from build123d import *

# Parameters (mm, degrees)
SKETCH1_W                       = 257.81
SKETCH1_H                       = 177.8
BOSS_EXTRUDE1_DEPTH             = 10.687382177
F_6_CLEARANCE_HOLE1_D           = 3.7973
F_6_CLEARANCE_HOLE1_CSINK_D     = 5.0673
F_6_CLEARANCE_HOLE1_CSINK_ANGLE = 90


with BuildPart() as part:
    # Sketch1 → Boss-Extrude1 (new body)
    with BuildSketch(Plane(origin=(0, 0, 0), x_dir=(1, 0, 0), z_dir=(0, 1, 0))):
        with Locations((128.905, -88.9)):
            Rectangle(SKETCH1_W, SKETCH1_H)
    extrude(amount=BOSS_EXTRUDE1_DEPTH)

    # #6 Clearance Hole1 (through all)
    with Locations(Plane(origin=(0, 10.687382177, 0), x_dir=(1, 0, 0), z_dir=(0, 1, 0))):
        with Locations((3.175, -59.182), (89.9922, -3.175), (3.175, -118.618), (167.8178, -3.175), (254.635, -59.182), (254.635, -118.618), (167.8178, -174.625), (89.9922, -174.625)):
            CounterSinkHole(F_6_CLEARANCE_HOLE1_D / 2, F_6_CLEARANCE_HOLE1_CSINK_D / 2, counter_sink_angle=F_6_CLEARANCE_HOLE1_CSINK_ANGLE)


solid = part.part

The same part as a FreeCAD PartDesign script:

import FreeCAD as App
import Part
import Sketcher
from FreeCAD import Vector
Q = App.Units.Quantity


def add_polygon(sketch, points):
    """Adds a closed chain of lines whose ends are joined by coincident constraints."""
    first, n = sketch.GeometryCount, len(points)
    for a, b in zip(points, points[1:] + points[:1]):
        sketch.addGeometry(Part.LineSegment(App.Vector(*a, 0), App.Vector(*b, 0)), False)
    for i in range(n):
        sketch.addConstraint(Sketcher.Constraint("Coincident", first + i, 2, first + (i + 1) % n, 1))

doc = App.newDocument("Part")
body = doc.addObject("PartDesign::Body", "Body")

# Sketch on XZ plane
sketch1 = body.newObject("Sketcher::SketchObject", "Sketch")
sketch1.AttachmentSupport = (doc.getObject("XZ_Plane"), [""])
sketch1.MapMode = "FlatFace"
add_polygon(sketch1, [(0, 0), (0, 178), (258, 178), (258, 0)])  # lines 0-3
sketch1.addConstraint(Sketcher.Constraint("Vertical", 0))
sketch1.addConstraint(Sketcher.Constraint("Horizontal", 1))
sketch1.addConstraint(Sketcher.Constraint("Vertical", 2))
sketch1.addConstraint(Sketcher.Constraint("Horizontal", 3))
sketch1.addConstraint(Sketcher.Constraint("Coincident", 3, 2, -1, 1))
sketch1.addConstraint(Sketcher.Constraint("DistanceY", 0, 1, 0, 2, Q("7 in")))
sketch1.addConstraint(Sketcher.Constraint("DistanceX", 1, 1, 1, 2, Q("10.15 in")))
pad1 = body.newObject("PartDesign::Pad", "Pad")
pad1.Profile = sketch1
pad1.Length = 10.687382
pad1.Reversed = True

# Sketch on XZ plane
sketch2 = body.newObject("Sketcher::SketchObject", "Sketch001")
sketch2.AttachmentSupport = (doc.getObject("XZ_Plane"), [""])
sketch2.MapMode = "FlatFace"
sketch2.AttachmentOffset = App.Placement(Vector(0, 0, -10.687382), App.Rotation())
sketch2.addGeometry(Part.Circle(Vector(3.2, 59.2, 0), Vector(0, 0, 1), 1.9), False)
sketch2.addGeometry(Part.Circle(Vector(90, 3.2, 0), Vector(0, 0, 1), 1.9), False)
sketch2.addGeometry(Part.Circle(Vector(3.2, 118.6, 0), Vector(0, 0, 1), 1.9), False)
sketch2.addGeometry(Part.Circle(Vector(167.8, 3.2, 0), Vector(0, 0, 1), 1.9), False)
sketch2.addGeometry(Part.Circle(Vector(254.6, 59.2, 0), Vector(0, 0, 1), 1.9), False)
sketch2.addGeometry(Part.Circle(Vector(254.6, 118.6, 0), Vector(0, 0, 1), 1.9), False)
sketch2.addGeometry(Part.Circle(Vector(167.8, 174.6, 0), Vector(0, 0, 1), 1.9), False)
sketch2.addGeometry(Part.Circle(Vector(90, 174.6, 0), Vector(0, 0, 1), 1.9), False)
sketch2.addConstraint(Sketcher.Constraint("Equal", 0, 1))
sketch2.addConstraint(Sketcher.Constraint("Equal", 1, 2))
sketch2.addConstraint(Sketcher.Constraint("Equal", 2, 3))
sketch2.addConstraint(Sketcher.Constraint("Equal", 3, 4))
sketch2.addConstraint(Sketcher.Constraint("Equal", 4, 5))
sketch2.addConstraint(Sketcher.Constraint("Equal", 5, 6))
sketch2.addConstraint(Sketcher.Constraint("Equal", 6, 7))
sketch2.addConstraint(Sketcher.Constraint("Horizontal", 1, 3, 3, 3))
sketch2.addConstraint(Sketcher.Constraint("Horizontal", 0, 3, 4, 3))
sketch2.addConstraint(Sketcher.Constraint("Horizontal", 2, 3, 5, 3))
sketch2.addConstraint(Sketcher.Constraint("Horizontal", 6, 3, 7, 3))
sketch2.addConstraint(Sketcher.Constraint("Vertical", 0, 3, 2, 3))
sketch2.addConstraint(Sketcher.Constraint("Vertical", 4, 3, 5, 3))
sketch2.addConstraint(Sketcher.Constraint("Vertical", 3, 3, 6, 3))
sketch2.addConstraint(Sketcher.Constraint("Vertical", 1, 3, 7, 3))
sketch2.addConstraint(Sketcher.Constraint("Diameter", 0, Q("0.1495 in")))
sketch2.addConstraint(Sketcher.Constraint("DistanceX", 0, 3, 4, 3, Q("9.9 in")))
sketch2.addConstraint(Sketcher.Constraint("DistanceY", -1, 1, 0, 3, Q("2.33 in")))
sketch2.addConstraint(Sketcher.Constraint("DistanceY", -1, 1, 2, 3, Q("4.67 in")))
sketch2.addConstraint(Sketcher.Constraint("DistanceY", 3, 3, 6, 3, Q("6.75 in")))
sketch2.addConstraint(Sketcher.Constraint("DistanceX", -1, 1, 0, 3, Q("0.125 in")))
sketch2.addConstraint(Sketcher.Constraint("DistanceX", -1, 1, 1, 3, Q("3.543 in")))
sketch2.addConstraint(Sketcher.Constraint("DistanceY", -1, 1, 1, 3, Q("0.125 in")))
sketch2.addConstraint(Sketcher.Constraint("DistanceX", -1, 1, 3, 3, Q("6.607 in")))
doc.recompute()
hole = body.newObject("PartDesign::Hole", "Hole")
hole.Profile = sketch2
hole.ThreadType = "None"
hole.Diameter = Q("0.1495 in")
hole.DepthType = "ThroughAll"
hole.HoleCutType = "Countersink"
hole.HoleCutDiameter = Q("0.1995 in")
hole.HoleCutCountersinkAngle = 90
hole.Reversed = True

doc.recompute()
